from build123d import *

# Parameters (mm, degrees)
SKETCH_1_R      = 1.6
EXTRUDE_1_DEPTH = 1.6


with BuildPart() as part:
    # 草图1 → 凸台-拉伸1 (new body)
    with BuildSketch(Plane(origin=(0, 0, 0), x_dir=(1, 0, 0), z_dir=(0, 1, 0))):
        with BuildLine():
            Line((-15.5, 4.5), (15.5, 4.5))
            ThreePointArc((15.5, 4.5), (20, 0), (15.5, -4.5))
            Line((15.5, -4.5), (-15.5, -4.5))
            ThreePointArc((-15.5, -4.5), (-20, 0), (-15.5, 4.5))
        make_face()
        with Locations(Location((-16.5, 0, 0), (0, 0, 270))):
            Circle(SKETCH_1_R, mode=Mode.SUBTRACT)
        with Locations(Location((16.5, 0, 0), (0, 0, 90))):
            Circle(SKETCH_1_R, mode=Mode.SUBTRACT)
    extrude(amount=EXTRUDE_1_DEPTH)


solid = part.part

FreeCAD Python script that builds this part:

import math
import FreeCAD as App
import Part
import Sketcher

V = App.Vector

doc = App.newDocument("Part")
params = doc.addObject("Spreadsheet::Sheet", "Params")
for row, (alias, value) in enumerate([
    ("sketch1_diameter", "3.2 mm"),
    ("sketch1_radius", "4.5 mm"),
    ("sketch1_width", "31 mm"),
    ("pad1_length", "1.6 mm"),
], start=1):
    params.set(f"A{row}", alias)
    params.set(f"B{row}", "=" + value)
    params.setAlias(f"B{row}", alias)

body = doc.addObject("PartDesign::Body", "Body")

sketch1 = body.newObject("Sketcher::SketchObject", "Sketch")
sketch1.AttachmentSupport = (doc.getObject("XZ_Plane"), [""])
sketch1.MapMode = "FlatFace"
sketch1.addGeometry(Part.LineSegment(V(15.5, -4.5, 0), V(-15.5, -4.5, 0)), False)
sketch1.addGeometry(Part.ArcOfCircle(Part.Circle(V(-15.5, 0, 0), V(0, 0, 1), 4.5), math.radians(90), math.radians(270)), False)
sketch1.addGeometry(Part.LineSegment(V(-15.5, 4.5, 0), V(15.5, 4.5, 0)), False)
sketch1.addGeometry(Part.ArcOfCircle(Part.Circle(V(15.5, 0, 0), V(0, 0, 1), 4.5), math.radians(-90), math.radians(90)), False)
sketch1.addGeometry(Part.Circle(V(16.5, 0, 0), V(0, 0, 1), 1.6), False)
sketch1.addGeometry(Part.Circle(V(-16.5, 0, 0), V(0, 0, 1), 1.6), False)
sketch1.addConstraint(Sketcher.Constraint("Tangent", 0, 2, 1, 2))
sketch1.addConstraint(Sketcher.Constraint("Tangent", 1, 1, 2, 1))
sketch1.addConstraint(Sketcher.Constraint("Tangent", 2, 2, 3, 2))
sketch1.addConstraint(Sketcher.Constraint("Tangent", 3, 1, 0, 1))
sketch1.addConstraint(Sketcher.Constraint("Horizontal", 0))
sketch1.addConstraint(Sketcher.Constraint("Horizontal", 2))
sketch1.addConstraint(Sketcher.Constraint("Equal", 4, 5))
sketch1.addConstraint(Sketcher.Constraint("Symmetric", 1, 3, 3, 3, -1, 1))
sketch1.addConstraint(Sketcher.Constraint("Symmetric", 4, 3, 5, 3, -1, 1))
sketch1.addConstraint(Sketcher.Constraint("PointOnObject", 4, 3, -1))
sketch1.addConstraint(Sketcher.Constraint("Diameter", 4, 3.2))
sketch1.addConstraint(Sketcher.Constraint("Radius", 1, 4.5))
sketch1.addConstraint(Sketcher.Constraint("DistanceX", 0, 2, 0, 1, 31.0))
sketch1.addConstraint(Sketcher.Constraint("DistanceX", 3, 3, 4, 3, 1.0))
sketch1.setExpression("Constraints[10]", "Params.sketch1_diameter")
sketch1.setExpression("Constraints[11]", "Params.sketch1_radius")
sketch1.setExpression("Constraints[12]", "Params.sketch1_width")
pad1 = body.newObject("PartDesign::Pad", "Pad")
pad1.Profile = sketch1
pad1.setExpression("Length", "Params.pad1_length")
pad1.Reversed = True

doc.recompute()
